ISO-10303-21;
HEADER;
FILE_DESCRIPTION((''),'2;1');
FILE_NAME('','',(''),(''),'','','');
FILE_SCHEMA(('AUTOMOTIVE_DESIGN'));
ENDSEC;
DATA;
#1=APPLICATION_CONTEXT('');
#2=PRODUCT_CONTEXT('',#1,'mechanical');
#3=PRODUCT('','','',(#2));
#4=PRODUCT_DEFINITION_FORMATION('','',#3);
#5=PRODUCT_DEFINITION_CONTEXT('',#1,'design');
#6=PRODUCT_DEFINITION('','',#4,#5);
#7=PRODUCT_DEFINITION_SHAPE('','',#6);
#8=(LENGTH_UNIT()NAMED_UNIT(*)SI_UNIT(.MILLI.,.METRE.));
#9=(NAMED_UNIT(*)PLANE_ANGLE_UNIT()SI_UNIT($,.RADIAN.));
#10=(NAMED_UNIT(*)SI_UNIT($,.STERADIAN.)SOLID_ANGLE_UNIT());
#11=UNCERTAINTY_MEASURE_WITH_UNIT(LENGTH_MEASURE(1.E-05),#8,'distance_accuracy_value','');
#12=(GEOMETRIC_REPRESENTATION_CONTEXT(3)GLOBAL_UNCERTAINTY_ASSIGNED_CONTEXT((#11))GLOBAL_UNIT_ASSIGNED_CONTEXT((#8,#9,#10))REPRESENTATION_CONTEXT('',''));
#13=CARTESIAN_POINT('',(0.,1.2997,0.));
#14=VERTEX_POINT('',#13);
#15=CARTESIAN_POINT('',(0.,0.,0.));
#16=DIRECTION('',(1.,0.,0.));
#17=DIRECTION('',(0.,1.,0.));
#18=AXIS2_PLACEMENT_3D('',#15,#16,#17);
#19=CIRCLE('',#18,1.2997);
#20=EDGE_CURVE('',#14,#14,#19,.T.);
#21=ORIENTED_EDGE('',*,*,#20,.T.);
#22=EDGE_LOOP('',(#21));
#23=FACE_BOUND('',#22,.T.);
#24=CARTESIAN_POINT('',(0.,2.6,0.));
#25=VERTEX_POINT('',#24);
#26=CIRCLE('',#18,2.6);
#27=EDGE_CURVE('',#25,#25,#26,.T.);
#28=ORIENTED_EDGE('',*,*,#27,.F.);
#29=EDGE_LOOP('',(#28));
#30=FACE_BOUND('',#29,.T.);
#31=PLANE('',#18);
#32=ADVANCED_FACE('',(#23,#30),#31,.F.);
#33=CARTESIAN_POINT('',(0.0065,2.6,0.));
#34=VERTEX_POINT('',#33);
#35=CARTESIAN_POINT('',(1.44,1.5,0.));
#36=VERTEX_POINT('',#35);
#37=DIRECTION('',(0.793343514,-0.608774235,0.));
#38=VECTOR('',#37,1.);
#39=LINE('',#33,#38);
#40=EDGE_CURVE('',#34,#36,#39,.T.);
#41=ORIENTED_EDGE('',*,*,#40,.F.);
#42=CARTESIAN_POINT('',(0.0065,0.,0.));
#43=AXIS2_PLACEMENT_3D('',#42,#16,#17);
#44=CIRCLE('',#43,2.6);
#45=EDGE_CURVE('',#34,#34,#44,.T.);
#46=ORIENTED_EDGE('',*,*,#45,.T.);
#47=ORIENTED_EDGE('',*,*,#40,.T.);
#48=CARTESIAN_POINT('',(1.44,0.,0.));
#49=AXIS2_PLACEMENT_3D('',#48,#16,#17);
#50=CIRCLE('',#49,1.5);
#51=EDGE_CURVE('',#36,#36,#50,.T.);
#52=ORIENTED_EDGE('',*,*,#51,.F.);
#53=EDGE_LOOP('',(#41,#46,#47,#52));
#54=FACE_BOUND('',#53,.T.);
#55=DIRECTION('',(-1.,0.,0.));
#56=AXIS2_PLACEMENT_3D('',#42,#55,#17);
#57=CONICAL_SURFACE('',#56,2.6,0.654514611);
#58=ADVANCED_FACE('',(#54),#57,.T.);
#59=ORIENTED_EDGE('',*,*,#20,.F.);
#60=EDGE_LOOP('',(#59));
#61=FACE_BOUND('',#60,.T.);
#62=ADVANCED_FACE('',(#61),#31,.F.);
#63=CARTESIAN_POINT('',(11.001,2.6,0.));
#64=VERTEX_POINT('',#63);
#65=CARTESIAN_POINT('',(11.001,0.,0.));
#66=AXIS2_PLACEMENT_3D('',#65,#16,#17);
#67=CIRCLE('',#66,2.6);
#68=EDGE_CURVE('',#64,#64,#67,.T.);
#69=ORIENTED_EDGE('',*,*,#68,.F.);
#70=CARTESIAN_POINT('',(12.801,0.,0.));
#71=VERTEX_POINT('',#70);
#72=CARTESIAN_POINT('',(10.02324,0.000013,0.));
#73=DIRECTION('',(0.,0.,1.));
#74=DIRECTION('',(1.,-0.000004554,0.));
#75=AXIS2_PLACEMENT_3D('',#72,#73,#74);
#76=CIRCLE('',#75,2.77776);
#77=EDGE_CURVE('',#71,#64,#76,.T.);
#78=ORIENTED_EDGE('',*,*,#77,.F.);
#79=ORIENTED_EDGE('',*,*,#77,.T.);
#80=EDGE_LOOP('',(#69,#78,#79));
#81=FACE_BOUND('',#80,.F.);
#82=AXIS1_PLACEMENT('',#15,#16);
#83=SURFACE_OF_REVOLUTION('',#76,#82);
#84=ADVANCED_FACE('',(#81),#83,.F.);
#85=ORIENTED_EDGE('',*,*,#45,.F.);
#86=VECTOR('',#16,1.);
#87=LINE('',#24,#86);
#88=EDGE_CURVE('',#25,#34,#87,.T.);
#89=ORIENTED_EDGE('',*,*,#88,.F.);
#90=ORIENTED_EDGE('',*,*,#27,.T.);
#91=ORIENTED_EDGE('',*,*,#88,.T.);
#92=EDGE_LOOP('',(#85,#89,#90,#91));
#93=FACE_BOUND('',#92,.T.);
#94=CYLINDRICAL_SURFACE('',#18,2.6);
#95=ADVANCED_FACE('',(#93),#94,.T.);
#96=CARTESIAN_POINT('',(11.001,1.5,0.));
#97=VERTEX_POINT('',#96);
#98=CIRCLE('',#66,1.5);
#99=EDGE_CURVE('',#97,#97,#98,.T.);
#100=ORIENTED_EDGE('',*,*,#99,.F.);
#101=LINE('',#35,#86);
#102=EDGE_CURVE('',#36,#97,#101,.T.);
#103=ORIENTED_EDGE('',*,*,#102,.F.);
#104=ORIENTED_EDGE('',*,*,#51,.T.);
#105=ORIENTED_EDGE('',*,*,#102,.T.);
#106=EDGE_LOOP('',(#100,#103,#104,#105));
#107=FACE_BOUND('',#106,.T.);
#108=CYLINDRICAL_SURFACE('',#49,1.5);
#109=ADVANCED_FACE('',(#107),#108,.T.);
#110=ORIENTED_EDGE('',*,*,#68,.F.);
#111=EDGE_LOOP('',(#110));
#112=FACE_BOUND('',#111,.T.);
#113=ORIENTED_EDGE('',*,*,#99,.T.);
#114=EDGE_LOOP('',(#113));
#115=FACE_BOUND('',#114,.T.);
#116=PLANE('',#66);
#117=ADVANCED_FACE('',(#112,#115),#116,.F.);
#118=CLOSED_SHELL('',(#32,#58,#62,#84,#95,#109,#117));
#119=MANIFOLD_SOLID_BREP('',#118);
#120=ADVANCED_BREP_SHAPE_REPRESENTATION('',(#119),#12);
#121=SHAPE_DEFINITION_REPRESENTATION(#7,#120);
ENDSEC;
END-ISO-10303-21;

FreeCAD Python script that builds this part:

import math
import FreeCAD as App
import Part
import Sketcher
from FreeCAD import Vector
Q = App.Units.Quantity

doc = App.newDocument("Part")
body = doc.addObject("PartDesign::Body", "Body")

sketch1 = body.newObject("Sketcher::SketchObject", "Sketch")
sketch1.AttachmentSupport = (doc.getObject("XY_Plane"), [""])
sketch1.MapMode = "FlatFace"
sketch1.addGeometry(Part.LineSegment(Vector(0, 2.6, 0), Vector(0, 0, 0)), False)
sketch1.addGeometry(Part.LineSegment(Vector(0, 0, 0), Vector(12.801, 0, 0)), False)
sketch1.addGeometry(Part.ArcOfCircle(Part.Circle(Vector(10.023, 0, 0), Vector(0, 0, 1), 2.778), math.radians(0), math.radians(69)), False)
sketch1.addGeometry(Part.LineSegment(Vector(11.001, 2.6, 0), Vector(11.001, 1.5, 0)), False)
sketch1.addGeometry(Part.LineSegment(Vector(11.001, 1.5, 0), Vector(1.44, 1.5, 0)), False)
sketch1.addGeometry(Part.LineSegment(Vector(1.44, 1.5, 0), Vector(0.006, 2.6, 0)), False)
sketch1.addGeometry(Part.LineSegment(Vector(0.006, 2.6, 0), Vector(0, 2.6, 0)), False)
sketch1.addConstraint(Sketcher.Constraint("Coincident", 0, 2, 1, 1))
sketch1.addConstraint(Sketcher.Constraint("Coincident", 1, 2, 2, 1))
sketch1.addConstraint(Sketcher.Constraint("Coincident", 2, 2, 3, 1))
sketch1.addConstraint(Sketcher.Constraint("Coincident", 3, 2, 4, 1))
sketch1.addConstraint(Sketcher.Constraint("Coincident", 4, 2, 5, 1))
sketch1.addConstraint(Sketcher.Constraint("Coincident", 5, 2, 6, 1))
sketch1.addConstraint(Sketcher.Constraint("Coincident", 6, 2, 0, 1))
sketch1.addConstraint(Sketcher.Constraint("Vertical", 0))
sketch1.addConstraint(Sketcher.Constraint("Horizontal", 1))
sketch1.addConstraint(Sketcher.Constraint("Vertical", 3))
sketch1.addConstraint(Sketcher.Constraint("Horizontal", 4))
sketch1.addConstraint(Sketcher.Constraint("Horizontal", 6))
sketch1.addConstraint(Sketcher.Constraint("Coincident", 0, 2, -1, 1))
sketch1.addConstraint(Sketcher.Constraint("PointOnObject", 2, 3, -1))
sketch1.addConstraint(Sketcher.Constraint("Horizontal", 2, 2, 5, 2))
sketch1.addConstraint(Sketcher.Constraint("DistanceX", 2, 2, 1, 2, 1.8))
sketch1.addConstraint(Sketcher.Constraint("DistanceX", -1, 1, 4, 2, 1.44))
sketch1.addConstraint(Sketcher.Constraint("DistanceY", 0, 2, 0, 1, 2.6))
sketch1.addConstraint(Sketcher.Constraint("DistanceY", 3, 2, 3, 1, 1.1))
sketch1.addConstraint(Sketcher.Constraint("DistanceX", -1, 1, 2, 2, 11.001))
sketch1.addConstraint(Sketcher.Constraint("Angle", 5, Q("142.499 deg")))
revolution = body.newObject("PartDesign::Revolution", "Revolution")
revolution.Profile = sketch1
revolution.ReferenceAxis = (sketch1, ["H_Axis"])
revolution.Angle = 360

doc.recompute()
